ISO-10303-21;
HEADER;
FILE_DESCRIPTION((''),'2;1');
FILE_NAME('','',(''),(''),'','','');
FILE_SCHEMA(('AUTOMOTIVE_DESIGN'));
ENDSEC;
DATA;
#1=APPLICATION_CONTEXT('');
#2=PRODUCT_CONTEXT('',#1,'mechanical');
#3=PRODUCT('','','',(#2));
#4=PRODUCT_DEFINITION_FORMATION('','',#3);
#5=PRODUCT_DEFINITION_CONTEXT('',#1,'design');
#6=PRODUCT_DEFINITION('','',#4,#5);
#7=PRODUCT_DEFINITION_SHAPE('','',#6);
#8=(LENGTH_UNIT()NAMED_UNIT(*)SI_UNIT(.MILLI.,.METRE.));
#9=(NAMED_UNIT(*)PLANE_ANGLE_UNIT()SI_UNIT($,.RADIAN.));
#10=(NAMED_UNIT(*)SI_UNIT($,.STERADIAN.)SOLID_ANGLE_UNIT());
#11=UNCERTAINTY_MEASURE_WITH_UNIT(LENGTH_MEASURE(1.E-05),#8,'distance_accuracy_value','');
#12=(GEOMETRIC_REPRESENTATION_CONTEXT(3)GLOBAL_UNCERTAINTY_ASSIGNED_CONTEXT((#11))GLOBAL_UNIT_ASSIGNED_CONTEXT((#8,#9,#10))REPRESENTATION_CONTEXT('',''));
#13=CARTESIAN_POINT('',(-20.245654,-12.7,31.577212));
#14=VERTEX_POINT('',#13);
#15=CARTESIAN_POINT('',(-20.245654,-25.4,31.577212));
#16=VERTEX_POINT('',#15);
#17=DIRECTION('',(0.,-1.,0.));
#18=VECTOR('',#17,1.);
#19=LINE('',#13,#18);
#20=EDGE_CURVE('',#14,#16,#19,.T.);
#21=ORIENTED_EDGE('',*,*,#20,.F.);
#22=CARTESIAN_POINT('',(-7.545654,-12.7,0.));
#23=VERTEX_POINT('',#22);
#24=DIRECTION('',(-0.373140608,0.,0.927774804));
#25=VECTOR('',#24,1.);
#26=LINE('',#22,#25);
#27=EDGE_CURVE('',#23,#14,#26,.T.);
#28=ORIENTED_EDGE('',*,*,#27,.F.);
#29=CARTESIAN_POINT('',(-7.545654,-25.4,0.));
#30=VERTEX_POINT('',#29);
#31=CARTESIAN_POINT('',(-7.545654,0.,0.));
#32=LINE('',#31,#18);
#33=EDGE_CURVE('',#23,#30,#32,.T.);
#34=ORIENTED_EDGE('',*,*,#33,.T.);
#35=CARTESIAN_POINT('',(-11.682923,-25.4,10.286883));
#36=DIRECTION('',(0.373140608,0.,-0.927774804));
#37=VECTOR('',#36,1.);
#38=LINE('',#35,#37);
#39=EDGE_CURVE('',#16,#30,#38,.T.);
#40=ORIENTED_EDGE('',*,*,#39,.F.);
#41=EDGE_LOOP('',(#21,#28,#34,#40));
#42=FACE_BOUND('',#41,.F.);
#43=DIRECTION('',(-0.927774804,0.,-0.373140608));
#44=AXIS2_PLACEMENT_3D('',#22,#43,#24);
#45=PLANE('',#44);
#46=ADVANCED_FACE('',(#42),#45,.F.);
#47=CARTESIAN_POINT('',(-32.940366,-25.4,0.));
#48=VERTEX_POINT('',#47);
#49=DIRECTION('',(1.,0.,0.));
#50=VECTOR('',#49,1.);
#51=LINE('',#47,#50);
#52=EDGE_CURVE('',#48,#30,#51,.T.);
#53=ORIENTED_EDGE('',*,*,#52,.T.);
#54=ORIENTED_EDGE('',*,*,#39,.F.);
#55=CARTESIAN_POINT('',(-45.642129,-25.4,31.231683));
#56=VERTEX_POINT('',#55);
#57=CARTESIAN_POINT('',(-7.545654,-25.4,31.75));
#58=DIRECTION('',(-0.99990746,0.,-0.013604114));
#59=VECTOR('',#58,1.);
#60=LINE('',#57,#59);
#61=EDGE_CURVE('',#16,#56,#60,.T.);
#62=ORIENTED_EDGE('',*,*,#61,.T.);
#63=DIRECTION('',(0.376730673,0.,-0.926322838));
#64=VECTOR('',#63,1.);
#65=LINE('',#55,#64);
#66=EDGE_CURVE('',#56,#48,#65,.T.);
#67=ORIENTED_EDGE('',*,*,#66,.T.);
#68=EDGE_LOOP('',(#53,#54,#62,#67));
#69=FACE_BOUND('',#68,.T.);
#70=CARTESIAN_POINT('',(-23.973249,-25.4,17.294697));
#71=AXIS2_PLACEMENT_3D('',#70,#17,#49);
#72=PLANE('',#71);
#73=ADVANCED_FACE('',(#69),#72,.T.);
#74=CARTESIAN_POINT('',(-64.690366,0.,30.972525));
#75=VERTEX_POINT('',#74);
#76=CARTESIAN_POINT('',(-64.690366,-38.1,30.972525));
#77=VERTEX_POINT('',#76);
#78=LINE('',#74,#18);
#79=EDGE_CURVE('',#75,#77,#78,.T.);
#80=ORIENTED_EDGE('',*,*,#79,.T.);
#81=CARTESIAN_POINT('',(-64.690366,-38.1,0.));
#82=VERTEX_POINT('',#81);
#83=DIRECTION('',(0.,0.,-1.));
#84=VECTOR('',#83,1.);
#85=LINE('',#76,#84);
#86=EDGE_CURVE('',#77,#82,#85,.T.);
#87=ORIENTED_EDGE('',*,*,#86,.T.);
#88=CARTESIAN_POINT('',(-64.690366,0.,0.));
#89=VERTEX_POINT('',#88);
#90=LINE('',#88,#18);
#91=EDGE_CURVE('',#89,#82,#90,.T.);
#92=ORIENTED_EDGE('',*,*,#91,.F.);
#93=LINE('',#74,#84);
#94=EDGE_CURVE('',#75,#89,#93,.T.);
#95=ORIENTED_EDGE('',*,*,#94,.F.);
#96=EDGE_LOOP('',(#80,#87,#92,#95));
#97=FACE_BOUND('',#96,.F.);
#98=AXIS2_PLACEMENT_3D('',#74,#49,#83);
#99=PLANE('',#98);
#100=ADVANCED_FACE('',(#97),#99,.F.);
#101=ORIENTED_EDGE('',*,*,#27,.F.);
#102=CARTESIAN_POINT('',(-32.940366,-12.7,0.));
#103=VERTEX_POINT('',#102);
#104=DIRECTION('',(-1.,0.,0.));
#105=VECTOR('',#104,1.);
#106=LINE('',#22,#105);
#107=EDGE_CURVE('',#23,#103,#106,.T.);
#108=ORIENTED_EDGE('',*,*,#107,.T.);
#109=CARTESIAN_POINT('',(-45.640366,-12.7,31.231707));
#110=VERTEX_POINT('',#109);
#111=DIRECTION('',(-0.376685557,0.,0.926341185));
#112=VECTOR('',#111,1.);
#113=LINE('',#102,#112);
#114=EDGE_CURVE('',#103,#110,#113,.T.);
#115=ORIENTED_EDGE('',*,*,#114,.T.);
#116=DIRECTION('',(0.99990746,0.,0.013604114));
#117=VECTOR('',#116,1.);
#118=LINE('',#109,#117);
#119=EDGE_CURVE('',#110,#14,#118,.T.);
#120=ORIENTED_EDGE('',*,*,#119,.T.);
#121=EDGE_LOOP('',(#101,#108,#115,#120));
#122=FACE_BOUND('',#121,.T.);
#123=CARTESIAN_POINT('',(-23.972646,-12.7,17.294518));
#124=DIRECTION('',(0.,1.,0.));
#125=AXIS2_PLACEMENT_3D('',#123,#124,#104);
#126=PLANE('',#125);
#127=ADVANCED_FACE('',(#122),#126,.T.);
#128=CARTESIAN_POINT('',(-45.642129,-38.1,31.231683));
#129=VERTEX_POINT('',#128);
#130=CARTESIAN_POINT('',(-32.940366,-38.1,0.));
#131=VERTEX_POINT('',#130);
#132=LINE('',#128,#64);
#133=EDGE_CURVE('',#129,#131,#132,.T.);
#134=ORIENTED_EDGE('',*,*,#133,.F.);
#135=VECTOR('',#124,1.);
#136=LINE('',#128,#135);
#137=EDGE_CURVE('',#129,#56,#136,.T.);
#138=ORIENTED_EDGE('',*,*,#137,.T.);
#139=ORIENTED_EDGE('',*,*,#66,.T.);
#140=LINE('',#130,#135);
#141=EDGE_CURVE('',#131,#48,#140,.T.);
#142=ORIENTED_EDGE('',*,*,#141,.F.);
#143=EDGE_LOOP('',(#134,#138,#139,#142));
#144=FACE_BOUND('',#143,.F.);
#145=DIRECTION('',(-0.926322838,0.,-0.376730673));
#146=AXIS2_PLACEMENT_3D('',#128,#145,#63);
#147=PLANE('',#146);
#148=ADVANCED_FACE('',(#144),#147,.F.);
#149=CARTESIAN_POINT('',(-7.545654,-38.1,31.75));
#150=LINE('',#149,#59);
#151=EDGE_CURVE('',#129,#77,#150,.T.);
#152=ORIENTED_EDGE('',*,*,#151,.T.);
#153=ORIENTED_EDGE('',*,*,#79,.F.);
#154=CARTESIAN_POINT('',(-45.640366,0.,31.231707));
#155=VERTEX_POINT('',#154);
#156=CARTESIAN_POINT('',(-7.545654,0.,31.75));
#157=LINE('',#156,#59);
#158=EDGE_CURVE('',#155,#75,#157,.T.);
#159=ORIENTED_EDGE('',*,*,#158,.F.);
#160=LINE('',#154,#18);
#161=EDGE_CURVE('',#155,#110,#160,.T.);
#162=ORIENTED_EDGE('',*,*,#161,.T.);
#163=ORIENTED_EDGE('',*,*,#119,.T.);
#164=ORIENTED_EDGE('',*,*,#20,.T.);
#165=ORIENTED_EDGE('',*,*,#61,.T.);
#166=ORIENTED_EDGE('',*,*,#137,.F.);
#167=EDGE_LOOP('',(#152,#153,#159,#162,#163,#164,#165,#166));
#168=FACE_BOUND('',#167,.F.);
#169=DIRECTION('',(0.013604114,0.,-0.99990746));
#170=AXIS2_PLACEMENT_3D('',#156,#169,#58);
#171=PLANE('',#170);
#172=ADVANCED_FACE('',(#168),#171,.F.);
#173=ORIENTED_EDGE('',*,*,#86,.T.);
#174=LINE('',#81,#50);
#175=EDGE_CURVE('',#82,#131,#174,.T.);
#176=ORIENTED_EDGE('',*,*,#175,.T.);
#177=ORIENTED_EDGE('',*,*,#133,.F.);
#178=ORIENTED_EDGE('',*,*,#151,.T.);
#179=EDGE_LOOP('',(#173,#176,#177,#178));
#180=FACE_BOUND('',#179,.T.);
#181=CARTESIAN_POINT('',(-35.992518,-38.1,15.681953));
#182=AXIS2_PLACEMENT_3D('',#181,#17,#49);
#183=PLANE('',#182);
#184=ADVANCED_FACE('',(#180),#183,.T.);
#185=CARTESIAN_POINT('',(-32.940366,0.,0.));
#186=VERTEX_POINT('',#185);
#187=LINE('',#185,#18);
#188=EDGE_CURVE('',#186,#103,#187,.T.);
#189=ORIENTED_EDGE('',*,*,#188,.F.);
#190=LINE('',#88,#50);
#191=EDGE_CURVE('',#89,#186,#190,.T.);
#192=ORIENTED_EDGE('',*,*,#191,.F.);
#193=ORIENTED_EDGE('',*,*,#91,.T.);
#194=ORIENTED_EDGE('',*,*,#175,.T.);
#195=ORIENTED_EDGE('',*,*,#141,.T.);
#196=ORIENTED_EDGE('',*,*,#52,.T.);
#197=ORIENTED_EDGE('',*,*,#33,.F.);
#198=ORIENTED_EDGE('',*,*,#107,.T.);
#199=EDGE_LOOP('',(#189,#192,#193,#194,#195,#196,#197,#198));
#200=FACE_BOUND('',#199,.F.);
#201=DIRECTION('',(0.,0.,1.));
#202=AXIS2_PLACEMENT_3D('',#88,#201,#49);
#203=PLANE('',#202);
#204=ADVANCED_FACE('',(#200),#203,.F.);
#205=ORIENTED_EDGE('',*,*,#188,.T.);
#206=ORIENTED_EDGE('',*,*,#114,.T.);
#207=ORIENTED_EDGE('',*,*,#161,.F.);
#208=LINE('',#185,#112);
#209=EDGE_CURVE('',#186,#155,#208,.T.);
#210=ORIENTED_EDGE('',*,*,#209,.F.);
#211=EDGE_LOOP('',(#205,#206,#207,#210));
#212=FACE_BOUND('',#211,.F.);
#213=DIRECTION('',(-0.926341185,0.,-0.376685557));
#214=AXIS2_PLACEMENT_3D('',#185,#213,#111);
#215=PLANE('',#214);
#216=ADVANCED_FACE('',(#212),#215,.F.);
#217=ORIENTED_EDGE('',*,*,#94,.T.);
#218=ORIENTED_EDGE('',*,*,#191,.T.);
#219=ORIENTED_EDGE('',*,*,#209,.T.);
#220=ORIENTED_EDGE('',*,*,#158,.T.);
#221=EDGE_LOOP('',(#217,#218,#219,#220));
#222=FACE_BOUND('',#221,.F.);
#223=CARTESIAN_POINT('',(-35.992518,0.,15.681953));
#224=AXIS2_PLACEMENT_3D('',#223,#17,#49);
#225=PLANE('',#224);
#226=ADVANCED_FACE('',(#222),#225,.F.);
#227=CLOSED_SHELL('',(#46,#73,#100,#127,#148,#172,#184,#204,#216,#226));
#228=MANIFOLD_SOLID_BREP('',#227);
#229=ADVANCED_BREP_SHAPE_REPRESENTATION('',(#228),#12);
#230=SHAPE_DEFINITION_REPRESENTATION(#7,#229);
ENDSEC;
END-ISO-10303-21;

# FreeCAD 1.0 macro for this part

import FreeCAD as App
import Part
import Sketcher

V = App.Vector
Q = App.Units.Quantity


def add_polygon(sketch, points):
    """Adds a closed chain of lines whose ends are joined by coincident constraints."""
    first, n = sketch.GeometryCount, len(points)
    for a, b in zip(points, points[1:] + points[:1]):
        sketch.addGeometry(Part.LineSegment(App.Vector(*a, 0), App.Vector(*b, 0)), False)
    for i in range(n):
        sketch.addConstraint(Sketcher.Constraint("Coincident", first + i, 2, first + (i + 1) % n, 1))

doc = App.newDocument("Part")
body = doc.addObject("PartDesign::Body", "Body")

# Sketch on XZ plane
sketch1 = body.newObject("Sketcher::SketchObject", "Sketch")
sketch1.AttachmentSupport = (doc.getObject("XZ_Plane"), [""])
sketch1.MapMode = "FlatFace"
add_polygon(sketch1, [(-7.545654, 31.75), (-64.690366, 30.972525), (-64.690366, 0), (-7.545654, 0)])  # lines 0-3
sketch1.addConstraint([
    Sketcher.Constraint("Vertical", 1),
    Sketcher.Constraint("Horizontal", 2),
    Sketcher.Constraint("Vertical", 3),
    Sketcher.Constraint("PointOnObject", 1, 2, -1),
    Sketcher.Constraint("DistanceY", 3, 1, 3, 2, Q("1.25 in")),
    Sketcher.Constraint("Distance", 0, Q("2.25 in")),
    Sketcher.Constraint("DistanceX", 2, 1, 2, 2, 57.144711),
    Sketcher.Constraint("DistanceX", 0, 2, -1, 1, 64.690366),
])
pad1 = body.newObject("PartDesign::Pad", "Pad")
pad1.Profile = sketch1
pad1.Length = Q("1.5 in")

# Sketch on XZ plane
sketch2 = body.newObject("Sketcher::SketchObject", "Sketch001")
sketch2.AttachmentSupport = (doc.getObject("XZ_Plane"), [""])
sketch2.MapMode = "FlatFace"
sketch2.AttachmentOffset = App.Placement(V(0, 0, 1.5 * 25.4), App.Rotation())
add_polygon(sketch2, [(-7.545654, 31.75), (-45.642129, 31.231683), (-32.940366, 0), (-7.545654, 0)])  # lines 0-3
sketch2.addConstraint([
    Sketcher.Constraint("Horizontal", 2),
    Sketcher.Constraint("Vertical", 3),
    Sketcher.Constraint("PointOnObject", 1, 2, -1),
    Sketcher.Constraint("Distance", 0, Q("1.5 in")),
    Sketcher.Constraint("DistanceY", 3, 1, 3, 2, Q("1.25 in")),
    Sketcher.Constraint("DistanceX", 2, 1, 2, 2, 25.394711),
    Sketcher.Constraint("DistanceX", 0, 2, -1, 1, 45.642129),
    Sketcher.Constraint("Distance", 1, 33.715765),
])
pocket1 = body.newObject("PartDesign::Pocket", "Pocket")
pocket1.Profile = sketch2
pocket1.Length = Q("0.5 in")

# Sketch on XZ plane
sketch3 = body.newObject("Sketcher::SketchObject", "Sketch002")
sketch3.AttachmentSupport = (doc.getObject("XZ_Plane"), [""])
sketch3.MapMode = "FlatFace"
add_polygon(sketch3, [(-32.940366, 0), (-45.640366, 31.231707), (-7.545654, 31.75), (-7.545654, 0)])  # lines 0-3
sketch3.addConstraint([
    Sketcher.Constraint("Vertical", 2),
    Sketcher.Constraint("Horizontal", 3),
    Sketcher.Constraint("PointOnObject", 2, 2, -1),
    Sketcher.Constraint("DistanceY", 2, 2, 2, 1, Q("1.25 in")),
    Sketcher.Constraint("DistanceX", 0, 2, 3, 2, Q("0.5 in")),
    Sketcher.Constraint("DistanceX", 3, 2, 3, 1, 25.394711),
    Sketcher.Constraint("Distance", 0, 33.715123),
    Sketcher.Constraint("DistanceX", 0, 2, -1, 1, 45.640366),
])
pocket2 = body.newObject("PartDesign::Pocket", "Pocket001")
pocket2.Profile = sketch3
pocket2.Length = Q("0.5 in")
pocket2.Reversed = True

# Sketch on XZ plane
sketch4 = body.newObject("Sketcher::SketchObject", "Sketch003")
sketch4.AttachmentSupport = (doc.getObject("XZ_Plane"), [""])
sketch4.MapMode = "FlatFace"
sketch4.AttachmentOffset = App.Placement(V(0, 0, 0.5 * 25.4), App.Rotation())
add_polygon(sketch4, [(-7.545654, 0), (-20.245654, 31.577212), (-7.545654, 31.75)])  # lines 0-2
sketch4.addConstraint([
    Sketcher.Constraint("Vertical", 2),
    Sketcher.Constraint("PointOnObject", 2, 2, -1),
    Sketcher.Constraint("DistanceY", 2, 2, 2, 1, Q("1.25 in")),
    Sketcher.Constraint("DistanceX", 0, 2, 1, 2, Q("0.5 in")),
    Sketcher.Constraint("DistanceY", -1, 1, 0, 2, 31.577212),
    Sketcher.Constraint("DistanceX", 0, 2, -1, 1, 20.245654),
])
pocket3 = body.newObject("PartDesign::Pocket", "Pocket002")
pocket3.Profile = sketch4
pocket3.Type = "ThroughAll"
pocket3.Reversed = True

doc.recompute()
